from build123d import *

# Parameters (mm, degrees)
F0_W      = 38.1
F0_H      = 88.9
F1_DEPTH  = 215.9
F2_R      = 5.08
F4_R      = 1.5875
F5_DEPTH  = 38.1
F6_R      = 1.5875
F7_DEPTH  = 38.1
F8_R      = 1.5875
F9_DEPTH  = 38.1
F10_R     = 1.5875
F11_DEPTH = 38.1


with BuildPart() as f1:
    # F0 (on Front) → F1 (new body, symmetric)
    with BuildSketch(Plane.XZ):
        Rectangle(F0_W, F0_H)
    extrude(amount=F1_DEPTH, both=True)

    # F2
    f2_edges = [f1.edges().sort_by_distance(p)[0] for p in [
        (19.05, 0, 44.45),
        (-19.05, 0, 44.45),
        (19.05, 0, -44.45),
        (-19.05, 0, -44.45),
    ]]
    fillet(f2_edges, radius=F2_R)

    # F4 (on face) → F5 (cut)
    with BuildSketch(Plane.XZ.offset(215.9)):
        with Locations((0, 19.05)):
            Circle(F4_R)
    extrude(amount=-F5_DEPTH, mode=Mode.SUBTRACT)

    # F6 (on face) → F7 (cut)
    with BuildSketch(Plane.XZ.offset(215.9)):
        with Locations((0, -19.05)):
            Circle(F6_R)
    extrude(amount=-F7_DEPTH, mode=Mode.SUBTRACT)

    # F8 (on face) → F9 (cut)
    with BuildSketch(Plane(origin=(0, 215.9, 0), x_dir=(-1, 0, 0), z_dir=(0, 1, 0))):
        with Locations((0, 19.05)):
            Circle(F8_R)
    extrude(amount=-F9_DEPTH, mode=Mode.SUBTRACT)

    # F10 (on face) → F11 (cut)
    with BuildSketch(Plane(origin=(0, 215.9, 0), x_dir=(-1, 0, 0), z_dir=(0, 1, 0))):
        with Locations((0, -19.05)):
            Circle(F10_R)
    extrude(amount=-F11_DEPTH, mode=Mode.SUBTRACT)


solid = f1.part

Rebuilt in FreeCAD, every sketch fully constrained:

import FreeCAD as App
import Part
import Sketcher
from FreeCAD import Vector
Q = App.Units.Quantity


def edges_at(feature, points):
    """Names of the edges that pass closest to the given points."""
    edges = feature.Shape.Edges
    near = lambda p: min(range(len(edges)), key=lambda i: edges[i].distToShape(Part.Vertex(*p))[0])
    return sorted({f"Edge{near(p) + 1}" for p in points})


def add_polygon(sketch, points):
    """Adds a closed chain of lines whose ends are joined by coincident constraints."""
    first, n = sketch.GeometryCount, len(points)
    for a, b in zip(points, points[1:] + points[:1]):
        sketch.addGeometry(Part.LineSegment(App.Vector(*a, 0), App.Vector(*b, 0)), False)
    for i in range(n):
        sketch.addConstraint(Sketcher.Constraint("Coincident", first + i, 2, first + (i + 1) % n, 1))

doc = App.newDocument("Part")
body = doc.addObject("PartDesign::Body", "Body")

# Sketch on XZ plane
sketch1 = doc.addObject("Sketcher::SketchObject", "Sketch")
body.addObject(sketch1)
sketch1.AttachmentSupport = (doc.XZ_Plane, [""])
sketch1.MapMode = "FlatFace"
add_polygon(sketch1, [(-19, 44), (-19, -44), (19, -44), (19, 44)])  # lines 0-3
sketch1.addConstraint([
    Sketcher.Constraint("Vertical", 0),
    Sketcher.Constraint("Horizontal", 1),
    Sketcher.Constraint("Vertical", 2),
    Sketcher.Constraint("Horizontal", 3),
    Sketcher.Constraint("Symmetric", 0, 2, 2, 2, -1, 1),
    Sketcher.Constraint("DistanceX", 1, 1, 1, 2, Q("1.5 in")),
    Sketcher.Constraint("DistanceY", 0, 2, 0, 1, Q("3.5 in")),
])
pad1 = doc.addObject("PartDesign::Pad", "Pad")
body.addObject(pad1)
pad1.Profile = sketch1
pad1.Length = Q("17 in")
pad1.Midplane = True
doc.recompute()

fillet = doc.addObject("PartDesign::Fillet", "Fillet")
body.addObject(fillet)
fillet.Base = (pad1, edges_at(pad1, [
    (19.05, 0, 44.45),
    (-19.05, 0, 44.45),
    (19.05, 0, -44.45),
    (-19.05, 0, -44.45),
]))
fillet.Radius = Q("0.2 in")

# Sketch on XZ plane
sketch2 = doc.addObject("Sketcher::SketchObject", "Sketch001")
body.addObject(sketch2)
sketch2.AttachmentSupport = (doc.XZ_Plane, [""])
sketch2.MapMode = "FlatFace"
sketch2.AttachmentOffset = App.Placement(Vector(0, 0, 8.5 * 25.4), App.Rotation())
sketch2.addGeometry(Part.Circle(Vector(0, 19.1, 0), Vector(0, 0, 1), 1.6), False)
sketch2.addConstraint([
    Sketcher.Constraint("PointOnObject", 0, 3, -2),
    Sketcher.Constraint("Diameter", 0, Q("0.125 in")),
    Sketcher.Constraint("DistanceY", -1, 1, 0, 3, Q("0.75 in")),
])
pocket1 = doc.addObject("PartDesign::Pocket", "Pocket")
body.addObject(pocket1)
pocket1.Profile = sketch2
pocket1.Length = Q("1.5 in")

# Sketch on XZ plane
sketch3 = doc.addObject("Sketcher::SketchObject", "Sketch002")
body.addObject(sketch3)
sketch3.AttachmentSupport = (doc.XZ_Plane, [""])
sketch3.MapMode = "FlatFace"
sketch3.AttachmentOffset = App.Placement(Vector(0, 0, 8.5 * 25.4), App.Rotation())
sketch3.addGeometry(Part.Circle(Vector(0, -19.1, 0), Vector(0, 0, 1), 1.6), False)
sketch3.addConstraint([
    Sketcher.Constraint("PointOnObject", 0, 3, -2),
    Sketcher.Constraint("Diameter", 0, Q("0.125 in")),
    Sketcher.Constraint("DistanceY", 0, 3, -1, 1, Q("0.75 in")),
])
pocket2 = doc.addObject("PartDesign::Pocket", "Pocket001")
body.addObject(pocket2)
pocket2.Profile = sketch3
pocket2.Length = Q("1.5 in")

# Sketch on XZ plane
sketch4 = doc.addObject("Sketcher::SketchObject", "Sketch003")
body.addObject(sketch4)
sketch4.AttachmentSupport = (doc.XZ_Plane, [""])
sketch4.MapMode = "FlatFace"
sketch4.AttachmentOffset = App.Placement(Vector(0, 0, -8.5 * 25.4), App.Rotation())
sketch4.addGeometry(Part.Circle(Vector(0, 19.1, 0), Vector(0, 0, 1), 1.6), False)
sketch4.addConstraint([
    Sketcher.Constraint("PointOnObject", 0, 3, -2),
    Sketcher.Constraint("Diameter", 0, Q("0.125 in")),
    Sketcher.Constraint("DistanceY", -1, 1, 0, 3, Q("0.75 in")),
])
pocket3 = doc.addObject("PartDesign::Pocket", "Pocket002")
body.addObject(pocket3)
pocket3.Profile = sketch4
pocket3.Length = Q("1.5 in")
pocket3.Reversed = True

# Sketch on XZ plane
sketch5 = doc.addObject("Sketcher::SketchObject", "Sketch004")
body.addObject(sketch5)
sketch5.AttachmentSupport = (doc.XZ_Plane, [""])
sketch5.MapMode = "FlatFace"
sketch5.AttachmentOffset = App.Placement(Vector(0, 0, -8.5 * 25.4), App.Rotation())
sketch5.addGeometry(Part.Circle(Vector(0, -19.1, 0), Vector(0, 0, 1), 1.6), False)
sketch5.addConstraint([
    Sketcher.Constraint("PointOnObject", 0, 3, -2),
    Sketcher.Constraint("Diameter", 0, Q("0.125 in")),
    Sketcher.Constraint("DistanceY", 0, 3, -1, 1, Q("0.75 in")),
])
pocket4 = doc.addObject("PartDesign::Pocket", "Pocket003")
body.addObject(pocket4)
pocket4.Profile = sketch5
pocket4.Length = Q("1.5 in")
pocket4.Reversed = True

doc.recompute()
